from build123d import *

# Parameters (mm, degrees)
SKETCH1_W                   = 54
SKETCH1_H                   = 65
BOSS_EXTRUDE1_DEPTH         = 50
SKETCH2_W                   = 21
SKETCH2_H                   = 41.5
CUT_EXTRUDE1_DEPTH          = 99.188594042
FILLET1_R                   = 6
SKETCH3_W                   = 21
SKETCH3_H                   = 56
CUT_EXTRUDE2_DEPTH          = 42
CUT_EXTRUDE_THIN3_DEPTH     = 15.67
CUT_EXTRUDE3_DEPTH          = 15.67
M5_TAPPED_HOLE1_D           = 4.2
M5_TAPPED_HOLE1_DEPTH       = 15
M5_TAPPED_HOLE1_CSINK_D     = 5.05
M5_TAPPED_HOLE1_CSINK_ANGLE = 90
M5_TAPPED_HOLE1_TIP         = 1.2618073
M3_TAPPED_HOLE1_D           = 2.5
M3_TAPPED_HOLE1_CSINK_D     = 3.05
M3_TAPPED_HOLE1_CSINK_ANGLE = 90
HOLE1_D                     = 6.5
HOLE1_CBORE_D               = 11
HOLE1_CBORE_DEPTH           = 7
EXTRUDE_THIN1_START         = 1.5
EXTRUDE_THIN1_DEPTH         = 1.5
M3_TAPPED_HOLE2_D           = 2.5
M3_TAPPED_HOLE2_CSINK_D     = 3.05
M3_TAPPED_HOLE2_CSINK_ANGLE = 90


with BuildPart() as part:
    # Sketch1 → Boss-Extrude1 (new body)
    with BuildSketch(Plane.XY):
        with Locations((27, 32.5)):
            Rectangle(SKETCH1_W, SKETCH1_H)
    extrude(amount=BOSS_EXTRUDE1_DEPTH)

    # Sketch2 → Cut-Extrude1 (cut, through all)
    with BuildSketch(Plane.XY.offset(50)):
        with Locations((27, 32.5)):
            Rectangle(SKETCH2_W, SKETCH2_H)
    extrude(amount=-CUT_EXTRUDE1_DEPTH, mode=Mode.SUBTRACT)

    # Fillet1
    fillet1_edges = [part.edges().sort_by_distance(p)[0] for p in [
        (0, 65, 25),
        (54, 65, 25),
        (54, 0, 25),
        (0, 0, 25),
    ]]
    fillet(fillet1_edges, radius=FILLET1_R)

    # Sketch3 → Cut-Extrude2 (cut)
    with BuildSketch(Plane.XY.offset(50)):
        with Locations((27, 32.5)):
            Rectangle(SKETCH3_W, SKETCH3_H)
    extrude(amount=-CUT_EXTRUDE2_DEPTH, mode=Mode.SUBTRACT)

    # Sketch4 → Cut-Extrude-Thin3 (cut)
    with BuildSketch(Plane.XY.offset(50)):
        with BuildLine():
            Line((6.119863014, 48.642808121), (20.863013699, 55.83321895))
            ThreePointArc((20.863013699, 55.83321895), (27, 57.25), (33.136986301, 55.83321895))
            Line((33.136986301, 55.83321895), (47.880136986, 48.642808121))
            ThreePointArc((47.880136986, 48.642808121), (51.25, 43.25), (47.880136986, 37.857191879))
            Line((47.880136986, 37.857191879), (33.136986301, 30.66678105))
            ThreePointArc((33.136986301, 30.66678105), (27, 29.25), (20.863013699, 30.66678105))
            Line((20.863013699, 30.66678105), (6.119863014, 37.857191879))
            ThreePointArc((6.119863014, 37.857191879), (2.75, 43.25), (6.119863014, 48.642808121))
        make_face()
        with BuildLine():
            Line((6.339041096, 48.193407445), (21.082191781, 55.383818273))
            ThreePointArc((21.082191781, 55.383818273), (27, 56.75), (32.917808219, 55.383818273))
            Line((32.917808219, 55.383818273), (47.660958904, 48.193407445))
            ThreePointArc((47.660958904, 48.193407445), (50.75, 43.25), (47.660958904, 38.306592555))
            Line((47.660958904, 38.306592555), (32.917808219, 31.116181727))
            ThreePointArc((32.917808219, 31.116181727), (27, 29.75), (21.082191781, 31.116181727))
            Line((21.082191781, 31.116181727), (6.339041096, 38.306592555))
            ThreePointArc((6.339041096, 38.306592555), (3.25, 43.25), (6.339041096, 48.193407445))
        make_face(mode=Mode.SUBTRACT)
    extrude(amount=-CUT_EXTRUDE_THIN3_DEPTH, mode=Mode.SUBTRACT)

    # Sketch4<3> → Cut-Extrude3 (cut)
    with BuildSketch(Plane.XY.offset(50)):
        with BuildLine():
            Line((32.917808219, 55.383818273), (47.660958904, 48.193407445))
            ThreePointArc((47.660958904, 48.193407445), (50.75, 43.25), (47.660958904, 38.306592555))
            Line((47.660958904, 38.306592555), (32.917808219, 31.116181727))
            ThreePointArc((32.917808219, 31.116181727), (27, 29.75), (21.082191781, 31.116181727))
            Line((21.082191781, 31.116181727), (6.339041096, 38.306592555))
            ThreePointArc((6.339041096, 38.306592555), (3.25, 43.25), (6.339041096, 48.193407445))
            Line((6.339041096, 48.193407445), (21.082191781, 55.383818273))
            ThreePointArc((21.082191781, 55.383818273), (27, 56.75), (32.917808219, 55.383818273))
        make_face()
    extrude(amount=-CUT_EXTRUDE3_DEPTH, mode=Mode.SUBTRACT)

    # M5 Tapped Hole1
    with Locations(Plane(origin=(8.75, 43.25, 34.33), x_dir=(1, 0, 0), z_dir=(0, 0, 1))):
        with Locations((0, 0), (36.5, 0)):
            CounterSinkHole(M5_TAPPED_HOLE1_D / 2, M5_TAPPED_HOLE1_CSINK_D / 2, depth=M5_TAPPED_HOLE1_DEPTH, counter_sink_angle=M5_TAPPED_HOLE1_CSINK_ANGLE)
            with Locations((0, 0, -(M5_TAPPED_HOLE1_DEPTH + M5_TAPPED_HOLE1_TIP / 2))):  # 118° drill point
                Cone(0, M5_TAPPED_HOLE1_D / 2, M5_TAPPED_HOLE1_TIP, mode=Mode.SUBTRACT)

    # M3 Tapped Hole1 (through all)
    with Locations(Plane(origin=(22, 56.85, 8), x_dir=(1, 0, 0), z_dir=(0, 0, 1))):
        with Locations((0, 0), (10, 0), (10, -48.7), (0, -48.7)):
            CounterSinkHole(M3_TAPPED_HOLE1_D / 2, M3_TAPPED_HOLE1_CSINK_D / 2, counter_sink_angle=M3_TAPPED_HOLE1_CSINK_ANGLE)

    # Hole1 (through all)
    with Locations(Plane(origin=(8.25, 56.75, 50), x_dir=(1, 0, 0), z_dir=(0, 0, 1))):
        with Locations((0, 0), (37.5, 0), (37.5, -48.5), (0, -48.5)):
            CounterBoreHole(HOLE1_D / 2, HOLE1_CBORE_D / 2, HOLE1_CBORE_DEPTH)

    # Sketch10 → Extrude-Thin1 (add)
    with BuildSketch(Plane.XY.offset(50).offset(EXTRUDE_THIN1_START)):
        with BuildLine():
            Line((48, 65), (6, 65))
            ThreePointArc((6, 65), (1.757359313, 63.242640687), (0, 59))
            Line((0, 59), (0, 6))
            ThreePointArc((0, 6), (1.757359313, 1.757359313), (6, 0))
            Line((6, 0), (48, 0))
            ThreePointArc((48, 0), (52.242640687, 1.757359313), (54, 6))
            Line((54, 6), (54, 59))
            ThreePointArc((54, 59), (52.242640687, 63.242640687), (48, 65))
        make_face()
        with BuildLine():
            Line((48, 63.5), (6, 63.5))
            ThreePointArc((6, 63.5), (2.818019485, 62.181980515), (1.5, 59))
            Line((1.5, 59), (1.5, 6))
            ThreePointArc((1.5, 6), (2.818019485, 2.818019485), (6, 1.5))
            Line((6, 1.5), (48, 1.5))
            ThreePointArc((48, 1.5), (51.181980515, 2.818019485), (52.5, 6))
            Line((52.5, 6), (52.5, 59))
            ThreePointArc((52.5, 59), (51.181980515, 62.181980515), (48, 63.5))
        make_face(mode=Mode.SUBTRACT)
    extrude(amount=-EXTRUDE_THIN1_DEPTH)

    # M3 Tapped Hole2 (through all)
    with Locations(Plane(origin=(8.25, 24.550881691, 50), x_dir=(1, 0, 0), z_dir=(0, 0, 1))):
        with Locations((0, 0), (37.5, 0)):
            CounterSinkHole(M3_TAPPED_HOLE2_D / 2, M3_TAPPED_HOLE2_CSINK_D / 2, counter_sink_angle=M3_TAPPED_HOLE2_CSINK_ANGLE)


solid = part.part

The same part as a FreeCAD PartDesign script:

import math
import FreeCAD as App
import Part
import Sketcher
from FreeCAD import Vector


def edges_at(feature, points):
    """Names of the edges that pass closest to the given points."""
    edges = feature.Shape.Edges
    near = lambda p: min(range(len(edges)), key=lambda i: edges[i].distToShape(Part.Vertex(*p))[0])
    return sorted({f"Edge{near(p) + 1}" for p in points})

doc = App.newDocument("Part")
body = doc.addObject("PartDesign::Body", "Body")

# Sketch on XY plane
sketch1 = body.newObject("Sketcher::SketchObject", "Sketch")
sketch1.AttachmentSupport = (doc.getObject("XY_Plane"), [""])
sketch1.MapMode = "FlatFace"
sketch1.addGeometry([
    Part.LineSegment(Vector(0, 65, 0), Vector(0, 0, 0)),
    Part.LineSegment(Vector(0, 0, 0), Vector(54, 0, 0)),
    Part.LineSegment(Vector(54, 0, 0), Vector(54, 65, 0)),
    Part.LineSegment(Vector(54, 65, 0), Vector(0, 65, 0)),
], False)
sketch1.addConstraint([
    Sketcher.Constraint("Coincident", 0, 2, 1, 1),
    Sketcher.Constraint("Coincident", 1, 2, 2, 1),
    Sketcher.Constraint("Coincident", 2, 2, 3, 1),
    Sketcher.Constraint("Coincident", 3, 2, 0, 1),
    Sketcher.Constraint("Vertical", 0),
    Sketcher.Constraint("Horizontal", 1),
    Sketcher.Constraint("Vertical", 2),
    Sketcher.Constraint("Horizontal", 3),
    Sketcher.Constraint("Coincident", 0, 2, -1, 1),
    Sketcher.Constraint("DistanceX", 1, 1, 1, 2, 54.0),
    Sketcher.Constraint("DistanceY", 0, 2, 0, 1, 65.0),
])
pad1 = body.newObject("PartDesign::Pad", "Pad")
pad1.Profile = sketch1
pad1.Length = 50

# Sketch on XY plane
sketch2 = body.newObject("Sketcher::SketchObject", "Sketch001")
sketch2.AttachmentSupport = (doc.getObject("XY_Plane"), [""])
sketch2.MapMode = "FlatFace"
sketch2.AttachmentOffset = App.Placement(Vector(0, 0, 50), App.Rotation())
sketch2.addGeometry([
    Part.LineSegment(Vector(16, 53, 0), Vector(16, 12, 0)),
    Part.LineSegment(Vector(16, 12, 0), Vector(38, 12, 0)),
    Part.LineSegment(Vector(38, 12, 0), Vector(38, 53, 0)),
    Part.LineSegment(Vector(38, 53, 0), Vector(16, 53, 0)),
], False)
sketch2.addConstraint([
    Sketcher.Constraint("Coincident", 0, 2, 1, 1),
    Sketcher.Constraint("Coincident", 1, 2, 2, 1),
    Sketcher.Constraint("Coincident", 2, 2, 3, 1),
    Sketcher.Constraint("Coincident", 3, 2, 0, 1),
    Sketcher.Constraint("Vertical", 0),
    Sketcher.Constraint("Horizontal", 1),
    Sketcher.Constraint("Vertical", 2),
    Sketcher.Constraint("Horizontal", 3),
    Sketcher.Constraint("DistanceX", 1, 1, 1, 2, 21.0),
    Sketcher.Constraint("DistanceY", 0, 2, 0, 1, 41.5),
    Sketcher.Constraint("DistanceX", -1, 1, 0, 2, 16.5),
    Sketcher.Constraint("DistanceY", -1, 1, 0, 2, 11.75),
])
pocket1 = body.newObject("PartDesign::Pocket", "Pocket")
pocket1.Profile = sketch2
pocket1.Type = "ThroughAll"
doc.recompute()

fillet = body.newObject("PartDesign::Fillet", "Fillet")
fillet.Base = (pocket1, edges_at(pocket1, [
    (0, 65, 25),
    (54, 65, 25),
    (54, 0, 25),
    (0, 0, 25),
]))
fillet.Radius = 6

# Sketch on XY plane
sketch3 = body.newObject("Sketcher::SketchObject", "Sketch002")
sketch3.AttachmentSupport = (doc.getObject("XY_Plane"), [""])
sketch3.MapMode = "FlatFace"
sketch3.AttachmentOffset = App.Placement(Vector(0, 0, 50), App.Rotation())
sketch3.addGeometry([
    Part.LineSegment(Vector(16, 60, 0), Vector(16, 4, 0)),
    Part.LineSegment(Vector(16, 4, 0), Vector(38, 4, 0)),
    Part.LineSegment(Vector(38, 4, 0), Vector(38, 60, 0)),
    Part.LineSegment(Vector(38, 60, 0), Vector(16, 60, 0)),
], False)
sketch3.addConstraint([
    Sketcher.Constraint("Coincident", 0, 2, 1, 1),
    Sketcher.Constraint("Coincident", 1, 2, 2, 1),
    Sketcher.Constraint("Coincident", 2, 2, 3, 1),
    Sketcher.Constraint("Coincident", 3, 2, 0, 1),
    Sketcher.Constraint("Vertical", 0),
    Sketcher.Constraint("Horizontal", 1),
    Sketcher.Constraint("Vertical", 2),
    Sketcher.Constraint("Horizontal", 3),
    Sketcher.Constraint("DistanceX", 1, 1, 1, 2, 21.0),
    Sketcher.Constraint("DistanceY", 0, 2, 0, 1, 56.0),
    Sketcher.Constraint("DistanceX", -1, 1, 0, 2, 16.5),
    Sketcher.Constraint("DistanceY", -1, 1, 0, 2, 4.5),
])
pocket2 = body.newObject("PartDesign::Pocket", "Pocket001")
pocket2.Profile = sketch3
pocket2.Length = 42

# Sketch on XY plane
sketch4 = body.newObject("Sketcher::SketchObject", "Sketch003")
sketch4.AttachmentSupport = (doc.getObject("XY_Plane"), [""])
sketch4.MapMode = "FlatFace"
sketch4.AttachmentOffset = App.Placement(Vector(0, 0, 50), App.Rotation())
sketch4.addGeometry([
    Part.LineSegment(Vector(21, 56, 0), Vector(6, 49, 0)),  # 0
    Part.ArcOfCircle(Part.Circle(Vector(9, 43, 0), Vector(0, 0, 1), 6), math.radians(116), math.radians(244)),  # 1
    Part.LineSegment(Vector(6, 38, 0), Vector(21, 31, 0)),  # 2
    Part.ArcOfCircle(Part.Circle(Vector(27, 43, 0), Vector(0, 0, 1), 14), math.radians(-116), math.radians(-64)),  # 3
    Part.LineSegment(Vector(33, 31, 0), Vector(48, 38, 0)),  # 4
    Part.ArcOfCircle(Part.Circle(Vector(45, 43, 0), Vector(0, 0, 1), 6), math.radians(-64), math.radians(64)),  # 5
    Part.LineSegment(Vector(48, 49, 0), Vector(33, 56, 0)),  # 6
    Part.ArcOfCircle(Part.Circle(Vector(27, 43, 0), Vector(0, 0, 1), 14), math.radians(64), math.radians(116)),  # 7
    Part.LineSegment(Vector(6, 48, 0), Vector(21, 55, 0)),  # 8
    Part.ArcOfCircle(Part.Circle(Vector(27, 43, 0), Vector(0, 0, 1), 14), math.radians(64), math.radians(116)),  # 9
    Part.LineSegment(Vector(33, 55, 0), Vector(48, 48, 0)),  # 10
    Part.ArcOfCircle(Part.Circle(Vector(45, 43, 0), Vector(0, 0, 1), 6), math.radians(-64), math.radians(64)),  # 11
    Part.LineSegment(Vector(48, 38, 0), Vector(33, 31, 0)),  # 12
    Part.ArcOfCircle(Part.Circle(Vector(27, 43, 0), Vector(0, 0, 1), 14), math.radians(-116), math.radians(-64)),  # 13
    Part.LineSegment(Vector(21, 31, 0), Vector(6, 38, 0)),  # 14
    Part.ArcOfCircle(Part.Circle(Vector(9, 43, 0), Vector(0, 0, 1), 6), math.radians(116), math.radians(244)),  # 15
], False)
sketch4.addConstraint([
    Sketcher.Constraint("Tangent", 0, 2, 1, 1),
    Sketcher.Constraint("Tangent", 1, 2, 2, 1),
    Sketcher.Constraint("Tangent", 2, 2, 3, 1),
    Sketcher.Constraint("Tangent", 3, 2, 4, 1),
    Sketcher.Constraint("Tangent", 4, 2, 5, 1),
    Sketcher.Constraint("Tangent", 5, 2, 6, 1),
    Sketcher.Constraint("Tangent", 6, 2, 7, 1),
    Sketcher.Constraint("Tangent", 7, 2, 0, 1),
    Sketcher.Constraint("Tangent", 8, 2, 9, 2),
    Sketcher.Constraint("Tangent", 9, 1, 10, 1),
    Sketcher.Constraint("Tangent", 10, 2, 11, 2),
    Sketcher.Constraint("Tangent", 11, 1, 12, 1),
    Sketcher.Constraint("Tangent", 12, 2, 13, 2),
    Sketcher.Constraint("Tangent", 13, 1, 14, 1),
    Sketcher.Constraint("Tangent", 14, 2, 15, 2),
    Sketcher.Constraint("Tangent", 15, 1, 8, 1),
    Sketcher.Constraint("Coincident", 7, 3, 3, 3),
    Sketcher.Constraint("Coincident", 9, 3, 3, 3),
    Sketcher.Constraint("Coincident", 11, 3, 5, 3),
    Sketcher.Constraint("Coincident", 13, 3, 3, 3),
    Sketcher.Constraint("Coincident", 15, 3, 1, 3),
    Sketcher.Constraint("Equal", 1, 5),
    Sketcher.Constraint("Equal", 3, 7),
    Sketcher.Constraint("Equal", 9, 13),
    Sketcher.Constraint("Equal", 11, 15),
    Sketcher.Constraint("Parallel", 0, 4),
    Sketcher.Constraint("Parallel", 2, 6),
    Sketcher.Constraint("Parallel", 4, 8),
    Sketcher.Constraint("Horizontal", 1, 3, 3, 3),
    Sketcher.Constraint("Radius", 1, 6.0),
    Sketcher.Constraint("Radius", 3, 14.0),
    Sketcher.Constraint("Radius", 9, 13.5),
    Sketcher.Constraint("DistanceX", -1, 1, 3, 3, 27.0),
    Sketcher.Constraint("DistanceX", 1, 3, 5, 3, 36.5),
    Sketcher.Constraint("DistanceY", -1, 1, 1, 3, 43.25),
])
pocket3 = body.newObject("PartDesign::Pocket", "Pocket002")
pocket3.Profile = sketch4
pocket3.Length = 15.67

# Sketch on XY plane
sketch5 = body.newObject("Sketcher::SketchObject", "Sketch004")
sketch5.AttachmentSupport = (doc.getObject("XY_Plane"), [""])
sketch5.MapMode = "FlatFace"
sketch5.AttachmentOffset = App.Placement(Vector(0, 0, 50), App.Rotation())
sketch5.addGeometry([
    Part.LineSegment(Vector(48, 48, 0), Vector(33, 55, 0)),  # 0
    Part.ArcOfCircle(Part.Circle(Vector(27, 43, 0), Vector(0, 0, 1), 14), math.radians(64), math.radians(116)),  # 1
    Part.LineSegment(Vector(21, 55, 0), Vector(6, 48, 0)),  # 2
    Part.ArcOfCircle(Part.Circle(Vector(9, 43, 0), Vector(0, 0, 1), 6), math.radians(116), math.radians(244)),  # 3
    Part.LineSegment(Vector(6, 38, 0), Vector(21, 31, 0)),  # 4
    Part.ArcOfCircle(Part.Circle(Vector(27, 43, 0), Vector(0, 0, 1), 14), math.radians(-116), math.radians(-64)),  # 5
    Part.LineSegment(Vector(33, 31, 0), Vector(48, 38, 0)),  # 6
    Part.ArcOfCircle(Part.Circle(Vector(45, 43, 0), Vector(0, 0, 1), 6), math.radians(-64), math.radians(64)),  # 7
], False)
sketch5.addConstraint([
    Sketcher.Constraint("Tangent", 0, 2, 1, 1),
    Sketcher.Constraint("Tangent", 1, 2, 2, 1),
    Sketcher.Constraint("Tangent", 2, 2, 3, 1),
    Sketcher.Constraint("Tangent", 3, 2, 4, 1),
    Sketcher.Constraint("Tangent", 4, 2, 5, 1),
    Sketcher.Constraint("Tangent", 5, 2, 6, 1),
    Sketcher.Constraint("Tangent", 6, 2, 7, 1),
    Sketcher.Constraint("Tangent", 7, 2, 0, 1),
    Sketcher.Constraint("Coincident", 5, 3, 1, 3),
    Sketcher.Constraint("Equal", 1, 5),
    Sketcher.Constraint("Equal", 3, 7),
    Sketcher.Constraint("Parallel", 0, 4),
    Sketcher.Constraint("Parallel", 2, 6),
    Sketcher.Constraint("Horizontal", 1, 3, 3, 3),
    Sketcher.Constraint("Radius", 1, 13.5),
    Sketcher.Constraint("Radius", 3, 5.5),
    Sketcher.Constraint("DistanceX", -1, 1, 1, 3, 27.0),
    Sketcher.Constraint("DistanceX", 3, 3, 7, 3, 36.5),
    Sketcher.Constraint("DistanceY", -1, 1, 1, 3, 43.25),
])
pocket4 = body.newObject("PartDesign::Pocket", "Pocket003")
pocket4.Profile = sketch5
pocket4.Length = 15.67

# Sketch on XY plane
sketch6 = body.newObject("Sketcher::SketchObject", "Sketch005")
sketch6.AttachmentSupport = (doc.getObject("XY_Plane"), [""])
sketch6.MapMode = "FlatFace"
sketch6.AttachmentOffset = App.Placement(Vector(0, 0, 34.33), App.Rotation())
sketch6.addGeometry([
    Part.Circle(Vector(8.8, 43.2, 0), Vector(0, 0, 1), 2.1),
    Part.Circle(Vector(45.2, 43.2, 0), Vector(0, 0, 1), 2.1),
], False)
sketch6.addConstraint([
    Sketcher.Constraint("Equal", 0, 1),
    Sketcher.Constraint("Horizontal", 0, 3, 1, 3),
    Sketcher.Constraint("Diameter", 0, 4.2),
    Sketcher.Constraint("DistanceX", 0, 3, 1, 3, 36.5),
    Sketcher.Constraint("DistanceX", -1, 1, 0, 3, 8.75),
    Sketcher.Constraint("DistanceY", -1, 1, 0, 3, 43.25),
])
doc.recompute()
hole = body.newObject("PartDesign::Hole", "Hole")
hole.Profile = sketch6
hole.ThreadType = "None"
hole.Diameter = 4.2
hole.DepthType = "Dimension"
hole.Depth = 15
hole.DrillPoint = "Angled"
hole.DrillPointAngle = 118
hole.HoleCutType = "Countersink"
hole.HoleCutDiameter = 5.05
hole.HoleCutCountersinkAngle = 90

# Sketch on XY plane
sketch7 = body.newObject("Sketcher::SketchObject", "Sketch006")
sketch7.AttachmentSupport = (doc.getObject("XY_Plane"), [""])
sketch7.MapMode = "FlatFace"
sketch7.AttachmentOffset = App.Placement(Vector(0, 0, 8), App.Rotation())
sketch7.addGeometry([
    Part.Circle(Vector(22, 56.9, 0), Vector(0, 0, 1), 1.2),
    Part.Circle(Vector(32, 56.9, 0), Vector(0, 0, 1), 1.2),
    Part.Circle(Vector(32, 8.2, 0), Vector(0, 0, 1), 1.2),
    Part.Circle(Vector(22, 8.2, 0), Vector(0, 0, 1), 1.2),
], False)
sketch7.addConstraint([
    Sketcher.Constraint("Equal", 0, 1),
    Sketcher.Constraint("Equal", 1, 2),
    Sketcher.Constraint("Equal", 2, 3),
    Sketcher.Constraint("Horizontal", 0, 3, 1, 3),
    Sketcher.Constraint("Horizontal", 2, 3, 3, 3),
    Sketcher.Constraint("Vertical", 1, 3, 2, 3),
    Sketcher.Constraint("Vertical", 0, 3, 3, 3),
    Sketcher.Constraint("Diameter", 0, 2.5),
    Sketcher.Constraint("DistanceX", -1, 1, 0, 3, 22.0),
    Sketcher.Constraint("DistanceX", -1, 1, 1, 3, 32.0),
    Sketcher.Constraint("DistanceY", 2, 3, 1, 3, 48.7),
    Sketcher.Constraint("DistanceY", -1, 1, 0, 3, 56.85),
])
doc.recompute()
hole2 = body.newObject("PartDesign::Hole", "Hole001")
hole2.Profile = sketch7
hole2.ThreadType = "None"
hole2.Diameter = 2.5
hole2.DepthType = "ThroughAll"
hole2.HoleCutType = "Countersink"
hole2.HoleCutDiameter = 3.05
hole2.HoleCutCountersinkAngle = 90

# Sketch on XY plane
sketch8 = body.newObject("Sketcher::SketchObject", "Sketch007")
sketch8.AttachmentSupport = (doc.getObject("XY_Plane"), [""])
sketch8.MapMode = "FlatFace"
sketch8.AttachmentOffset = App.Placement(Vector(0, 0, 50), App.Rotation())
sketch8.addGeometry([
    Part.Circle(Vector(8.2, 56.8, 0), Vector(0, 0, 1), 3.2),
    Part.Circle(Vector(45.8, 56.8, 0), Vector(0, 0, 1), 3.2),
    Part.Circle(Vector(45.8, 8.2, 0), Vector(0, 0, 1), 3.2),
    Part.Circle(Vector(8.2, 8.2, 0), Vector(0, 0, 1), 3.2),
], False)
sketch8.addConstraint([
    Sketcher.Constraint("Equal", 0, 1),
    Sketcher.Constraint("Equal", 1, 2),
    Sketcher.Constraint("Equal", 2, 3),
    Sketcher.Constraint("Horizontal", 0, 3, 1, 3),
    Sketcher.Constraint("Horizontal", 2, 3, 3, 3),
    Sketcher.Constraint("Vertical", 1, 3, 2, 3),
    Sketcher.Constraint("Vertical", 0, 3, 3, 3),
    Sketcher.Constraint("Diameter", 0, 6.5),
    Sketcher.Constraint("DistanceX", 0, 3, 1, 3, 37.5),
    Sketcher.Constraint("DistanceY", 2, 3, 1, 3, 48.5),
    Sketcher.Constraint("DistanceX", -1, 1, 0, 3, 8.25),
    Sketcher.Constraint("DistanceY", -1, 1, 0, 3, 56.75),
])
doc.recompute()
hole3 = body.newObject("PartDesign::Hole", "Hole002")
hole3.Profile = sketch8
hole3.ThreadType = "None"
hole3.Diameter = 6.5
hole3.DepthType = "ThroughAll"
hole3.HoleCutType = "Counterbore"
hole3.HoleCutDiameter = 11
hole3.HoleCutDepth = 7

# Sketch on XY plane
sketch9 = body.newObject("Sketcher::SketchObject", "Sketch008")
sketch9.AttachmentSupport = (doc.getObject("XY_Plane"), [""])
sketch9.MapMode = "FlatFace"
sketch9.AttachmentOffset = App.Placement(Vector(0, 0, 51.5), App.Rotation())
sketch9.addGeometry([
    Part.LineSegment(Vector(48, 65, 0), Vector(6, 65, 0)),  # 0
    Part.ArcOfCircle(Part.Circle(Vector(6, 59, 0), Vector(0, 0, 1), 6), math.radians(90), math.radians(180)),  # 1
    Part.LineSegment(Vector(0, 59, 0), Vector(0, 6, 0)),  # 2
    Part.ArcOfCircle(Part.Circle(Vector(6, 6, 0), Vector(0, 0, 1), 6), math.radians(180), math.radians(270)),  # 3
    Part.LineSegment(Vector(6, 0, 0), Vector(48, 0, 0)),  # 4
    Part.ArcOfCircle(Part.Circle(Vector(48, 6, 0), Vector(0, 0, 1), 6), math.radians(-90), math.radians(0)),  # 5
    Part.LineSegment(Vector(54, 6, 0), Vector(54, 59, 0)),  # 6
    Part.ArcOfCircle(Part.Circle(Vector(48, 59, 0), Vector(0, 0, 1), 6), math.radians(0), math.radians(90)),  # 7
    Part.LineSegment(Vector(6, 63.5, 0), Vector(48, 63.5, 0)),  # 8
    Part.ArcOfCircle(Part.Circle(Vector(48, 59, 0), Vector(0, 0, 1), 4.5), math.radians(0), math.radians(90)),  # 9
    Part.LineSegment(Vector(52.5, 59, 0), Vector(52.5, 6, 0)),  # 10
    Part.ArcOfCircle(Part.Circle(Vector(48, 6, 0), Vector(0, 0, 1), 4.5), math.radians(-90), math.radians(0)),  # 11
    Part.LineSegment(Vector(48, 1.5, 0), Vector(6, 1.5, 0)),  # 12
    Part.ArcOfCircle(Part.Circle(Vector(6, 6, 0), Vector(0, 0, 1), 4.5), math.radians(-180), math.radians(-90)),  # 13
    Part.LineSegment(Vector(1.5, 6, 0), Vector(1.5, 59, 0)),  # 14
    Part.ArcOfCircle(Part.Circle(Vector(6, 59, 0), Vector(0, 0, 1), 4.5), math.radians(90), math.radians(180)),  # 15
], False)
sketch9.addConstraint([
    Sketcher.Constraint("Tangent", 0, 2, 1, 1),
    Sketcher.Constraint("Tangent", 1, 2, 2, 1),
    Sketcher.Constraint("Tangent", 2, 2, 3, 1),
    Sketcher.Constraint("Tangent", 3, 2, 4, 1),
    Sketcher.Constraint("Tangent", 4, 2, 5, 1),
    Sketcher.Constraint("Tangent", 5, 2, 6, 1),
    Sketcher.Constraint("Tangent", 6, 2, 7, 1),
    Sketcher.Constraint("Tangent", 7, 2, 0, 1),
    Sketcher.Constraint("Tangent", 8, 2, 9, 2),
    Sketcher.Constraint("Tangent", 9, 1, 10, 1),
    Sketcher.Constraint("Tangent", 10, 2, 11, 2),
    Sketcher.Constraint("Tangent", 11, 1, 12, 1),
    Sketcher.Constraint("Tangent", 12, 2, 13, 2),
    Sketcher.Constraint("Tangent", 13, 1, 14, 1),
    Sketcher.Constraint("Tangent", 14, 2, 15, 2),
    Sketcher.Constraint("Tangent", 15, 1, 8, 1),
    Sketcher.Constraint("Horizontal", 0),
    Sketcher.Constraint("Vertical", 2),
    Sketcher.Constraint("Horizontal", 4),
    Sketcher.Constraint("Vertical", 6),
    Sketcher.Constraint("Horizontal", 8),
    Sketcher.Constraint("Vertical", 10),
    Sketcher.Constraint("Horizontal", 12),
    Sketcher.Constraint("Vertical", 14),
    Sketcher.Constraint("Coincident", 9, 3, 7, 3),
    Sketcher.Constraint("Coincident", 11, 3, 5, 3),
    Sketcher.Constraint("Coincident", 13, 3, 3, 3),
    Sketcher.Constraint("Equal", 1, 3),
    Sketcher.Constraint("Equal", 3, 5),
    Sketcher.Constraint("Equal", 5, 7),
    Sketcher.Constraint("Equal", 13, 15),
    Sketcher.Constraint("PointOnObject", 1, 2, -2),
    Sketcher.Constraint("PointOnObject", 3, 2, -1),
    Sketcher.Constraint("Radius", 1, 6.0),
    Sketcher.Constraint("Radius", 9, 4.5),
    Sketcher.Constraint("DistanceX", 0, 2, 0, 1, 42.0),
    Sketcher.Constraint("DistanceY", 2, 2, 2, 1, 53.0),
])
pad2 = body.newObject("PartDesign::Pad", "Pad001")
pad2.Profile = sketch9
pad2.Length = 1.5
pad2.Reversed = True

# Sketch on XY plane
sketch10 = body.newObject("Sketcher::SketchObject", "Sketch009")
sketch10.AttachmentSupport = (doc.getObject("XY_Plane"), [""])
sketch10.MapMode = "FlatFace"
sketch10.AttachmentOffset = App.Placement(Vector(0, 0, 50), App.Rotation())
sketch10.addGeometry([
    Part.Circle(Vector(8.2, 24.6, 0), Vector(0, 0, 1), 1.2),
    Part.Circle(Vector(45.8, 24.6, 0), Vector(0, 0, 1), 1.2),
], False)
sketch10.addConstraint([
    Sketcher.Constraint("Equal", 0, 1),
    Sketcher.Constraint("Horizontal", 0, 3, 1, 3),
    Sketcher.Constraint("Diameter", 0, 2.5),
    Sketcher.Constraint("DistanceX", 0, 3, 1, 3, 37.5),
    Sketcher.Constraint("DistanceX", -1, 1, 0, 3, 8.25),
    Sketcher.Constraint("DistanceY", -1, 1, 0, 3, 24.550882),
])
doc.recompute()
hole4 = body.newObject("PartDesign::Hole", "Hole003")
hole4.Profile = sketch10
hole4.ThreadType = "None"
hole4.Diameter = 2.5
hole4.DepthType = "ThroughAll"
hole4.HoleCutType = "Countersink"
hole4.HoleCutDiameter = 3.05
hole4.HoleCutCountersinkAngle = 90

doc.recompute()
